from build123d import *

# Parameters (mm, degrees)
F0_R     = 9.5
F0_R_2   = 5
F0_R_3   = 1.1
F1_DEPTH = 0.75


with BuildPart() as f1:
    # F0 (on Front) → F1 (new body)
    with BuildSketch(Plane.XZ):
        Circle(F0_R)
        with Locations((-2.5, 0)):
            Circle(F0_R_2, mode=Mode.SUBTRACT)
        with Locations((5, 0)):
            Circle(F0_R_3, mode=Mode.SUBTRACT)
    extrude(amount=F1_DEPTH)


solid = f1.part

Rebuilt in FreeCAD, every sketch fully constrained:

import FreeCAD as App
import Part
import Sketcher

V = App.Vector
Q = App.Units.Quantity

doc = App.newDocument("Part")
params = doc.addObject("Spreadsheet::Sheet", "Params")
for row, (alias, value) in enumerate([
    ("sketch1_diameter", "19 mm"),
    ("sketch1_diameter2", "10 mm"),
    ("sketch1_diameter3", "2.2 mm"),
    ("pad1_length", "0.75 mm"),
], start=1):
    params.set(f"A{row}", alias)
    params.set(f"B{row}", "=" + value)
    params.setAlias(f"B{row}", alias)

body = doc.addObject("PartDesign::Body", "Body")

# Sketch on XZ plane
sketch1 = body.newObject("Sketcher::SketchObject", "Sketch")
sketch1.AttachmentSupport = (doc.getObject("XZ_Plane"), [""])
sketch1.MapMode = "FlatFace"
sketch1.addGeometry(Part.Circle(V(0, 0, 0), V(0, 0, 1), 9.5), False)
sketch1.addGeometry(Part.Circle(V(-2.5, 0, 0), V(0, 0, 1), 5), False)
sketch1.addGeometry(Part.Circle(V(5, 0, 0), V(0, 0, 1), 1.1), False)
sketch1.addConstraint(Sketcher.Constraint("Coincident", 0, 3, -1, 1))
sketch1.addConstraint(Sketcher.Constraint("PointOnObject", 1, 3, -1))
sketch1.addConstraint(Sketcher.Constraint("PointOnObject", 2, 3, -1))
sketch1.addConstraint(Sketcher.Constraint("Diameter", 0, Q("19 mm")))
sketch1.addConstraint(Sketcher.Constraint("Diameter", 1, Q("10 mm")))
sketch1.addConstraint(Sketcher.Constraint("Diameter", 2, Q("2.2 mm")))
sketch1.addConstraint(Sketcher.Constraint("DistanceX", -1, 1, 2, 3, Q("5 mm")))
sketch1.addConstraint(Sketcher.Constraint("DistanceX", 1, 3, -1, 1, Q("2.5 mm")))
sketch1.setExpression("Constraints[3]", "Params.sketch1_diameter")
sketch1.setExpression("Constraints[4]", "Params.sketch1_diameter2")
sketch1.setExpression("Constraints[5]", "Params.sketch1_diameter3")
pad1 = body.newObject("PartDesign::Pad", "Pad")
pad1.Profile = sketch1
pad1.setExpression("Length", "Params.pad1_length")

doc.recompute()
